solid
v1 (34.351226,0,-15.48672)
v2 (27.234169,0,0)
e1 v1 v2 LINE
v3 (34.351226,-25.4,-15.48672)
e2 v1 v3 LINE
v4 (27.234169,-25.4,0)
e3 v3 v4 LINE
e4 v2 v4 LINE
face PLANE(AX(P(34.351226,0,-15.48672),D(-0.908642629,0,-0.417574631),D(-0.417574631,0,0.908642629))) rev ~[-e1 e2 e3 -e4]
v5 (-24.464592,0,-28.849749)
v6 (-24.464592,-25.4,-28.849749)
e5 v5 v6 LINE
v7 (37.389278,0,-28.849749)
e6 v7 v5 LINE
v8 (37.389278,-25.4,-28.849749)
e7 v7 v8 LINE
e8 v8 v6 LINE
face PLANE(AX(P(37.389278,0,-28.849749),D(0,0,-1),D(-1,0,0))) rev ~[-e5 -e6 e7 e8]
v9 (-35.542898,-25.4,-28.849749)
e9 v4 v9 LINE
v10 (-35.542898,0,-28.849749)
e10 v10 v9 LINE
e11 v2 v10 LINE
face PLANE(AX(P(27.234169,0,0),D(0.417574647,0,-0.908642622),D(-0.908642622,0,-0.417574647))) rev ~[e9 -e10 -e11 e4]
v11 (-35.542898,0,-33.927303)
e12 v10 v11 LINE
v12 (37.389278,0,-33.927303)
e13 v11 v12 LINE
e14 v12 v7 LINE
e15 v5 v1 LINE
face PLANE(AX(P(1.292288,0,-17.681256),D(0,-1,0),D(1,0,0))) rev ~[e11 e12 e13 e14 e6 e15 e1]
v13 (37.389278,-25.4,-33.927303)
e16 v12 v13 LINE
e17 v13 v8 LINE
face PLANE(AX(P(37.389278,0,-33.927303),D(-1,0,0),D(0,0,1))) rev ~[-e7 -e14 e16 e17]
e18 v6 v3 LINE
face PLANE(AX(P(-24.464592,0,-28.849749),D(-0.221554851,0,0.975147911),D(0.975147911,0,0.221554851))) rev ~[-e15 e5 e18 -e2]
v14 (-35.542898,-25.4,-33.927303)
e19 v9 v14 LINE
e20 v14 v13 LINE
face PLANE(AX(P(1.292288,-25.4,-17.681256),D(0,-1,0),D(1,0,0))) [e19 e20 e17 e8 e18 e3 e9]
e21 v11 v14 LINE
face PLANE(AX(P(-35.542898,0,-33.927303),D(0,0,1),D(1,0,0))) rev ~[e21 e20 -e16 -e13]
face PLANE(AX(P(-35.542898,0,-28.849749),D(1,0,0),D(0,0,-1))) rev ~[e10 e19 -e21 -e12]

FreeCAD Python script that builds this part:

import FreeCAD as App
import Part
import Sketcher

V = App.Vector
Q = App.Units.Quantity

doc = App.newDocument("Part")
body = doc.addObject("PartDesign::Body", "Body")

sketch1 = body.newObject("Sketcher::SketchObject", "Sketch")
sketch1.AttachmentSupport = (doc.getObject("XZ_Plane"), [""])
sketch1.MapMode = "FlatFace"
sketch1.addGeometry([
    Part.LineSegment(V(27, 0, 0), V(-36, -29, 0)),
    Part.LineSegment(V(-36, -29, 0), V(-36, -34, 0)),
    Part.LineSegment(V(-36, -34, 0), V(37, -34, 0)),
    Part.LineSegment(V(37, -34, 0), V(37, -29, 0)),
    Part.LineSegment(V(37, -29, 0), V(-24, -29, 0)),
    Part.LineSegment(V(-24, -29, 0), V(34, -15, 0)),
    Part.LineSegment(V(34, -15, 0), V(27, 0, 0)),
], False)
sketch1.addConstraint([
    Sketcher.Constraint("Coincident", 0, 2, 1, 1),
    Sketcher.Constraint("Coincident", 1, 2, 2, 1),
    Sketcher.Constraint("Coincident", 2, 2, 3, 1),
    Sketcher.Constraint("Coincident", 3, 2, 4, 1),
    Sketcher.Constraint("Coincident", 4, 2, 5, 1),
    Sketcher.Constraint("Coincident", 5, 2, 6, 1),
    Sketcher.Constraint("Coincident", 6, 2, 0, 1),
    Sketcher.Constraint("Vertical", 1),
    Sketcher.Constraint("Horizontal", 2),
    Sketcher.Constraint("Vertical", 3),
    Sketcher.Constraint("Horizontal", 4),
    Sketcher.Constraint("PointOnObject", 6, 2, -1),
    Sketcher.Constraint("Perpendicular", 0, 6),
    Sketcher.Constraint("Horizontal", 0, 2, 3, 2),
    Sketcher.Constraint("DistanceX", 4, 2, 4, 1, Q("61.85387 mm")),
    Sketcher.Constraint("DistanceX", 2, 1, 2, 2, Q("72.932176 mm")),
    Sketcher.Constraint("DistanceY", 1, 2, 1, 1, Q("5.077554 mm")),
    Sketcher.Constraint("DistanceY", 0, 2, -1, 1, Q("28.849749 mm")),
    Sketcher.Constraint("DistanceX", 4, 2, -1, 1, Q("24.464592 mm")),
    Sketcher.Constraint("DistanceY", 5, 2, -1, 1, Q("15.48672 mm")),
    Sketcher.Constraint("DistanceX", -1, 1, 6, 2, Q("27.234169 mm")),
])
pad1 = body.newObject("PartDesign::Pad", "Pad")
pad1.Profile = sketch1
pad1.Length = Q("1 in")

doc.recompute()
